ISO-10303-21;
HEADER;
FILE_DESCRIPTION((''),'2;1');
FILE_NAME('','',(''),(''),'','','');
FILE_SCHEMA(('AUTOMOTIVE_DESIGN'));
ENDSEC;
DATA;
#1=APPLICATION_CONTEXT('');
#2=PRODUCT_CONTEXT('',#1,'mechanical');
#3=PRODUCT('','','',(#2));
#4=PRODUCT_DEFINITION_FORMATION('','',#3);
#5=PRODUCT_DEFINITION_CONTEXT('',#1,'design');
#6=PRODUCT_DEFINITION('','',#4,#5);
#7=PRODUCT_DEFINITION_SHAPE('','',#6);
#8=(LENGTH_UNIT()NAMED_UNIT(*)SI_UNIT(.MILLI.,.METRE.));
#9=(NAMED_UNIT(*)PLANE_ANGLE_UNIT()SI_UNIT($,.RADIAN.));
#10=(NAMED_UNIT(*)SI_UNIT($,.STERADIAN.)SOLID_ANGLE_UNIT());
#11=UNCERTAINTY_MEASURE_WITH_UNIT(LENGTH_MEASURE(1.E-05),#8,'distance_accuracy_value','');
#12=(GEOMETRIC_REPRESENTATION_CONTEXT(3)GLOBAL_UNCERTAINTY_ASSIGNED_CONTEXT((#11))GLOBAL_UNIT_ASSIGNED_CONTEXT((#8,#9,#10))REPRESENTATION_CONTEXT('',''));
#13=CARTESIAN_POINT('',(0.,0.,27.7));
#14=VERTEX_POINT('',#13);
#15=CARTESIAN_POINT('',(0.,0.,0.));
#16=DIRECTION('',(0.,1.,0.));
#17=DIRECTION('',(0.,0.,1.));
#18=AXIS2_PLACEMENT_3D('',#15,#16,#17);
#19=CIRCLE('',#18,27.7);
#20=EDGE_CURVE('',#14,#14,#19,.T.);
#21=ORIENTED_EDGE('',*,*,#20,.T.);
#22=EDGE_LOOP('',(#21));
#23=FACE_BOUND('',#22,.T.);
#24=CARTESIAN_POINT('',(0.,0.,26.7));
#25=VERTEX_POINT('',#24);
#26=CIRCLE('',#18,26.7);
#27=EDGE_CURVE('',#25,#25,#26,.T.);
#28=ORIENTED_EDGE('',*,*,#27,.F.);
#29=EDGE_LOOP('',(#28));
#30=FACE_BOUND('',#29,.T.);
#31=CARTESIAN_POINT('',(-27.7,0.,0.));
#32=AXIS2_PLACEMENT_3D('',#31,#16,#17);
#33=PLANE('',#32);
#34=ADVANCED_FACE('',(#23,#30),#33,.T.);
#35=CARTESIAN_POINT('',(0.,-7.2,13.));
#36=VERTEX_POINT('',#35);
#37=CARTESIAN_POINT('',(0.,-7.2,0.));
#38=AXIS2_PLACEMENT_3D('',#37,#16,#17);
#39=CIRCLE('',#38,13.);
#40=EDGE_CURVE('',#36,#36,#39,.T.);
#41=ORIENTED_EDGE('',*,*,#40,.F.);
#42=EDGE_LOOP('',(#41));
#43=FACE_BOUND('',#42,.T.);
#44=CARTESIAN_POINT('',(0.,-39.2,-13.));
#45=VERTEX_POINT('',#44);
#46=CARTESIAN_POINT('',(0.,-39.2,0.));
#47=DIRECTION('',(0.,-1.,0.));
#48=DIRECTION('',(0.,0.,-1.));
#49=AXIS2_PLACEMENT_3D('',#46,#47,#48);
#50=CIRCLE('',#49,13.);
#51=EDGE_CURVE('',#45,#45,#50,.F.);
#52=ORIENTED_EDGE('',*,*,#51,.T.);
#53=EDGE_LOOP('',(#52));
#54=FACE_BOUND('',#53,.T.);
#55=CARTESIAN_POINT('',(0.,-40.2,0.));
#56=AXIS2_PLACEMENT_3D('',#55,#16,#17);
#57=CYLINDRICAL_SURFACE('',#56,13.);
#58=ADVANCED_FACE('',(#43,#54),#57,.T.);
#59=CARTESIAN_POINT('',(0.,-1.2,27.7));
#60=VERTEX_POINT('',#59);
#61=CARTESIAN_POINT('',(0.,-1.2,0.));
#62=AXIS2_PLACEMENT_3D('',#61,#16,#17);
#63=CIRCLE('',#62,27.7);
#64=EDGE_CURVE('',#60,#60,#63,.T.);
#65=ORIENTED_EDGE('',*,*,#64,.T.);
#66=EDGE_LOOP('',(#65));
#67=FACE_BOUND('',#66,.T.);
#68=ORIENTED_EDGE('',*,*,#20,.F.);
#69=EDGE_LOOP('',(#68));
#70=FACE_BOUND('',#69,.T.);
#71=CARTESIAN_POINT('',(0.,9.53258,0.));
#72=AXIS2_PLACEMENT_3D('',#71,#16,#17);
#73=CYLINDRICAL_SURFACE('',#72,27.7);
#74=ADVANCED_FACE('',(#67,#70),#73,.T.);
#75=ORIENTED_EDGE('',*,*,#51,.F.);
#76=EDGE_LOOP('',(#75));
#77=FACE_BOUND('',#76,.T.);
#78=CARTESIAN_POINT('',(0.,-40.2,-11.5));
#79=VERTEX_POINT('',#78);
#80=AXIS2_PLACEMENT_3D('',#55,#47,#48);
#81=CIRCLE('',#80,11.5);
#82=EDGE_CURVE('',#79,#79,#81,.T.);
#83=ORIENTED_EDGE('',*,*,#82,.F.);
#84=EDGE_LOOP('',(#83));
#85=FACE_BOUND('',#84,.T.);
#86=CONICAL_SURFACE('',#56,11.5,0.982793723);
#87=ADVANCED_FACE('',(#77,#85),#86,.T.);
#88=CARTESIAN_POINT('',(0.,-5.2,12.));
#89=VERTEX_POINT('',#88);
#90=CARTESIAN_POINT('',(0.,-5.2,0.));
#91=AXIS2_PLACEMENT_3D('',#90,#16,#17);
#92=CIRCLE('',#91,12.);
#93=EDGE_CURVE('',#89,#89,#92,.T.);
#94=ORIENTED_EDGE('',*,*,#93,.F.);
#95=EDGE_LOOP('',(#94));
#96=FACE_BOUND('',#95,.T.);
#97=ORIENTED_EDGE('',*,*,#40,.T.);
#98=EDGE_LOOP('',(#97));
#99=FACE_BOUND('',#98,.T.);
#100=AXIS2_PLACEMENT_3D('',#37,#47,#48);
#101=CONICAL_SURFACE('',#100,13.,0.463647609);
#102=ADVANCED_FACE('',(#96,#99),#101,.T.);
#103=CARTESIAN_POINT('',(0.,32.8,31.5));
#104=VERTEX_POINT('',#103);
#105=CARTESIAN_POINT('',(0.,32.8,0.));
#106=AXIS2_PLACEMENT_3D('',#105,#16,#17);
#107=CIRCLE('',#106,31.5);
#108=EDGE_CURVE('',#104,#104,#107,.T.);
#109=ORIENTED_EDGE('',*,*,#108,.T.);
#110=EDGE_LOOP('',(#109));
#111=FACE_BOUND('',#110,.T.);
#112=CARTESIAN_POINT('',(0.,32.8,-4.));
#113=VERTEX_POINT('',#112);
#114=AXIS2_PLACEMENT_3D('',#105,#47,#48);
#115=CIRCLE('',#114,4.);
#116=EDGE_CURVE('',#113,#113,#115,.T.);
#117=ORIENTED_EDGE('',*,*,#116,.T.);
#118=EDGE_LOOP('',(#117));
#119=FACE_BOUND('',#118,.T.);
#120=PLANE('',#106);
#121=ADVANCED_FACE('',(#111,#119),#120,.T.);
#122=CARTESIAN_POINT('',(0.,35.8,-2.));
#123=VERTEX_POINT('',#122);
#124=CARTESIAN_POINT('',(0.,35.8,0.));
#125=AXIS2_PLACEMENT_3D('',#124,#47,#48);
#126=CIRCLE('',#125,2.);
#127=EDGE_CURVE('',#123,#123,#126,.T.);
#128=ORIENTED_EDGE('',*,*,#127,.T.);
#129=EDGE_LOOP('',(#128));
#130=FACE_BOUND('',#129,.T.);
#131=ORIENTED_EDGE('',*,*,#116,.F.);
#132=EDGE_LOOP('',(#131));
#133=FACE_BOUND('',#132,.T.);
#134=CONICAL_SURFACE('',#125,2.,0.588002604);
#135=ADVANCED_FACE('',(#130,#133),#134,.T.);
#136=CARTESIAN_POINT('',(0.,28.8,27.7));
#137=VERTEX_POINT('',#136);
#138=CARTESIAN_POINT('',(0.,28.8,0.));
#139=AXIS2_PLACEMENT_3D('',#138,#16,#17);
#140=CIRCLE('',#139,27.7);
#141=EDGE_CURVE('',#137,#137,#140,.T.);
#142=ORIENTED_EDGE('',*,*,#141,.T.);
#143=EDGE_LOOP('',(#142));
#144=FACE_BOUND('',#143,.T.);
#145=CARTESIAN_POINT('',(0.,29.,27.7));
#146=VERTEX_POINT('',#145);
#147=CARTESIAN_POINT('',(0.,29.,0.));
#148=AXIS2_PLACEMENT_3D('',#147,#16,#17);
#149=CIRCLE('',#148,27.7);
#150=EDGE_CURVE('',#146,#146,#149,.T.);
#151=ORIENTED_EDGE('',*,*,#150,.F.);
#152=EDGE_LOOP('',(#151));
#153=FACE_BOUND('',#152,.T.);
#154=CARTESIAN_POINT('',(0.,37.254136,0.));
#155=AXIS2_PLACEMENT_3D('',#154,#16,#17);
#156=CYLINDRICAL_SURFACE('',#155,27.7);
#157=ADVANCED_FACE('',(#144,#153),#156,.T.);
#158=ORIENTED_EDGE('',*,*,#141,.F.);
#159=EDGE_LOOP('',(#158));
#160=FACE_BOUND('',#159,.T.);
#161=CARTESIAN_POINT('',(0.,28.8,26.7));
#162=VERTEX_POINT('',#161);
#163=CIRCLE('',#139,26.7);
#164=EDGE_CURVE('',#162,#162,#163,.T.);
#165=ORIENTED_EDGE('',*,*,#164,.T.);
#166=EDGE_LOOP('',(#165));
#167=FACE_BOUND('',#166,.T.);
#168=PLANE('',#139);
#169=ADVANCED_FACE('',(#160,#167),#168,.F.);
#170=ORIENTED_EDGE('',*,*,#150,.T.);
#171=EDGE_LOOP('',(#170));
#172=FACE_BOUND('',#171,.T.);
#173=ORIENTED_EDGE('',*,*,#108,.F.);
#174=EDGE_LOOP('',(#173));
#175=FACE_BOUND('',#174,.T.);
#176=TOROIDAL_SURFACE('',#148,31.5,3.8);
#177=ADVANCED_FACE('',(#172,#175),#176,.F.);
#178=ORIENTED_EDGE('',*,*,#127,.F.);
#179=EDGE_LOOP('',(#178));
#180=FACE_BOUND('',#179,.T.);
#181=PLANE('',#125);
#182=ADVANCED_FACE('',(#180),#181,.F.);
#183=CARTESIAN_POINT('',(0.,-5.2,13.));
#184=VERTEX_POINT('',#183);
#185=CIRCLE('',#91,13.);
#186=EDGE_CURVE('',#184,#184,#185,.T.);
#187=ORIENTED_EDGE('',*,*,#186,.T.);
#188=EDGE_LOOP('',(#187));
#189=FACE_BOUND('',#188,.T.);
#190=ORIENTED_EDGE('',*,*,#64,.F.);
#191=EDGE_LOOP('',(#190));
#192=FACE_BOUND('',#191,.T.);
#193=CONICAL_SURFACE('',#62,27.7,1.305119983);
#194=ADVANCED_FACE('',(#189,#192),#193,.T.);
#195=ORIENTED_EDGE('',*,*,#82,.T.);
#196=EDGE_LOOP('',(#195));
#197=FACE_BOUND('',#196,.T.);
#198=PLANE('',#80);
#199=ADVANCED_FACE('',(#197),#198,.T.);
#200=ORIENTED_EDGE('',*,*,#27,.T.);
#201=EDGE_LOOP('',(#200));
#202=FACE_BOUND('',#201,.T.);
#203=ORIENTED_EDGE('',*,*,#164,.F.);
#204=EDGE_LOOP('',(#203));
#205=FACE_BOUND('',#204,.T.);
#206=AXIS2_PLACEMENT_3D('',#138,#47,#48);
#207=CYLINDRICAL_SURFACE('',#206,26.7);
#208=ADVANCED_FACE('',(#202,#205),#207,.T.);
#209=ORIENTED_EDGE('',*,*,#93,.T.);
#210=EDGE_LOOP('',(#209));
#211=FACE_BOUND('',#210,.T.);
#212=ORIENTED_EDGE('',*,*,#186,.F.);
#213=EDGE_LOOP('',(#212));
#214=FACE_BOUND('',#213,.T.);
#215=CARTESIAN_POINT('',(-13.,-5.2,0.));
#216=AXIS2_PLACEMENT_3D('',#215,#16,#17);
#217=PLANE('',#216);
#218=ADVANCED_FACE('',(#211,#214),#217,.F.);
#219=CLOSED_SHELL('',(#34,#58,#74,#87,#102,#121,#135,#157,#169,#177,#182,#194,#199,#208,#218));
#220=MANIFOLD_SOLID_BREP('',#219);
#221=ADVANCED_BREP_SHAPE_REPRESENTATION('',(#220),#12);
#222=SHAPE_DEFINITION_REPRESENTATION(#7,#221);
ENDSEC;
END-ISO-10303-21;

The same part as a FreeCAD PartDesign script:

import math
import FreeCAD as App
import Part
import Sketcher

V = App.Vector
Q = App.Units.Quantity


def edges_at(feature, points):
    """Names of the edges that pass closest to the given points."""
    edges = feature.Shape.Edges
    near = lambda p: min(range(len(edges)), key=lambda i: edges[i].distToShape(Part.Vertex(*p))[0])
    return sorted({f"Edge{near(p) + 1}" for p in points})

doc = App.newDocument("Part")
body = doc.addObject("PartDesign::Body", "Body")

sketch1 = body.newObject("Sketcher::SketchObject", "Sketch")
sketch1.AttachmentSupport = (doc.getObject("XZ_Plane"), [""])
sketch1.MapMode = "FlatFace"
sketch1.addGeometry(Part.Circle(V(0, 0, 0), V(0, 0, 1), 27), False)
sketch1.addConstraint([
    Sketcher.Constraint("Coincident", 0, 3, -1, 1),
    Sketcher.Constraint("Diameter", 0, Q("53.4 mm")),
])
pad1 = body.newObject("PartDesign::Pad", "Pad")
pad1.Profile = sketch1
pad1.Length = 28.8
pad1.Reversed = True

sketch2 = body.newObject("Sketcher::SketchObject", "Sketch001")
sketch2.AttachmentSupport = (doc.getObject("XY_Plane"), [""])
sketch2.MapMode = "FlatFace"
sketch2.addGeometry([
    Part.LineSegment(V(-27.7, 28.8, 0), V(0, 28.8, 0)),
    Part.LineSegment(V(0, 28.8, 0), V(0, 29, 0)),
    Part.LineSegment(V(0, 29, 0), V(-27.7, 29, 0)),
    Part.LineSegment(V(-27.7, 29, 0), V(-27.7, 28.8, 0)),
], False)
sketch2.addConstraint([
    Sketcher.Constraint("Coincident", 0, 2, 1, 1),
    Sketcher.Constraint("Coincident", 1, 2, 2, 1),
    Sketcher.Constraint("Coincident", 2, 2, 3, 1),
    Sketcher.Constraint("Coincident", 3, 2, 0, 1),
    Sketcher.Constraint("Horizontal", 0),
    Sketcher.Constraint("Vertical", 1),
    Sketcher.Constraint("Horizontal", 2),
    Sketcher.Constraint("Vertical", 3),
    Sketcher.Constraint("PointOnObject", 0, 2, -2),
    Sketcher.Constraint("DistanceX", 0, 1, 0, 2, Q("27.7 mm")),
    Sketcher.Constraint("DistanceY", 1, 1, 1, 2, Q("0.2 mm")),
    Sketcher.Constraint("DistanceY", -1, 1, 1, 2, Q("29 mm")),
])
revolution = body.newObject("PartDesign::Revolution", "Revolution")
revolution.Profile = sketch2
revolution.ReferenceAxis = (sketch2, ["V_Axis"])
revolution.Angle = 360

sketch3 = body.newObject("Sketcher::SketchObject", "Sketch002")
sketch3.AttachmentSupport = (doc.getObject("XY_Plane"), [""])
sketch3.MapMode = "FlatFace"
sketch3.addGeometry([
    Part.ArcOfCircle(Part.Circle(V(-31.5, 29, 0), V(0, 0, 1), 3.8), math.radians(0), math.radians(90)),
    Part.LineSegment(V(-27.7, 29, 0), V(0, 29, 0)),
    Part.LineSegment(V(0, 29, 0), V(0, 32.8, 0)),
    Part.LineSegment(V(0, 32.8, 0), V(-31.5, 32.8, 0)),
], False)
sketch3.addConstraint([
    Sketcher.Constraint("Coincident", 0, 1, 1, 1),
    Sketcher.Constraint("Coincident", 1, 2, 2, 1),
    Sketcher.Constraint("Coincident", 2, 2, 3, 1),
    Sketcher.Constraint("Tangent", 3, 2, 0, 2),
    Sketcher.Constraint("Horizontal", 1),
    Sketcher.Constraint("Vertical", 2),
    Sketcher.Constraint("Horizontal", 3),
    Sketcher.Constraint("PointOnObject", 1, 2, -2),
    Sketcher.Constraint("Radius", 0, Q("3.8 mm")),
    Sketcher.Constraint("DistanceX", 1, 1, 1, 2, Q("27.7 mm")),
    Sketcher.Constraint("DistanceY", 2, 1, 2, 2, Q("3.8 mm")),
    Sketcher.Constraint("DistanceY", -1, 1, 0, 3, Q("29 mm")),
])
revolution2 = body.newObject("PartDesign::Revolution", "Revolution001")
revolution2.Profile = sketch3
revolution2.ReferenceAxis = (sketch3, ["V_Axis"])
revolution2.Angle = 360

sketch4 = body.newObject("Sketcher::SketchObject", "Sketch003")
sketch4.AttachmentSupport = (doc.getObject("XY_Plane"), [""])
sketch4.MapMode = "FlatFace"
sketch4.addGeometry([
    Part.LineSegment(V(0, 0, 0), V(-27.7, 0, 0)),
    Part.LineSegment(V(-27.7, 0, 0), V(-27.7, -1.2, 0)),
    Part.LineSegment(V(-27.7, -1.2, 0), V(0, -1.2, 0)),
    Part.LineSegment(V(0, -1.2, 0), V(0, 0, 0)),
], False)
sketch4.addConstraint([
    Sketcher.Constraint("Coincident", 0, 2, 1, 1),
    Sketcher.Constraint("Coincident", 1, 2, 2, 1),
    Sketcher.Constraint("Coincident", 2, 2, 3, 1),
    Sketcher.Constraint("Coincident", 3, 2, 0, 1),
    Sketcher.Constraint("Horizontal", 0),
    Sketcher.Constraint("Vertical", 1),
    Sketcher.Constraint("Horizontal", 2),
    Sketcher.Constraint("Vertical", 3),
    Sketcher.Constraint("Coincident", 3, 2, -1, 1),
    Sketcher.Constraint("DistanceX", 0, 2, 0, 1, Q("27.7 mm")),
    Sketcher.Constraint("DistanceY", 1, 2, 1, 1, Q("1.2 mm")),
])
revolution3 = body.newObject("PartDesign::Revolution", "Revolution002")
revolution3.Profile = sketch4
revolution3.ReferenceAxis = (sketch4, ["V_Axis"])
revolution3.Angle = 360

sketch5 = body.newObject("Sketcher::SketchObject", "Sketch004")
sketch5.AttachmentSupport = (doc.getObject("XZ_Plane"), [""])
sketch5.MapMode = "FlatFace"
sketch5.AttachmentOffset = App.Placement(V(0, 0, 1.2), App.Rotation())
sketch5.addGeometry(Part.Circle(V(0, 0, 0), V(0, 0, 1), 13), False)
sketch5.addConstraint([
    Sketcher.Constraint("Coincident", 0, 3, -1, 1),
    Sketcher.Constraint("Diameter", 0, Q("26 mm")),
])
pad2 = body.newObject("PartDesign::Pad", "Pad001")
pad2.Profile = sketch5
pad2.Length = 39
doc.recompute()

chamfer = body.newObject("PartDesign::Chamfer", "Chamfer")
chamfer.Base = (pad2, edges_at(pad2, [(0, -40.2, 13)]))
chamfer.ChamferType = "Two distances"
chamfer.Size = 1
chamfer.Size2 = 1.5

sketch6 = body.newObject("Sketcher::SketchObject", "Sketch005")
sketch6.AttachmentSupport = (doc.getObject("XY_Plane"), [""])
sketch6.MapMode = "FlatFace"
sketch6.addGeometry([
    Part.LineSegment(V(-13, -5.2, 0), V(-13, -1.2, 0)),
    Part.LineSegment(V(-13, -1.2, 0), V(-27.7, -1.2, 0)),
    Part.LineSegment(V(-27.7, -1.2, 0), V(-13, -5.2, 0)),
], False)
sketch6.addConstraint([
    Sketcher.Constraint("Coincident", 0, 2, 1, 1),
    Sketcher.Constraint("Coincident", 1, 2, 2, 1),
    Sketcher.Constraint("Coincident", 2, 2, 0, 1),
    Sketcher.Constraint("Vertical", 0),
    Sketcher.Constraint("Horizontal", 1),
    Sketcher.Constraint("DistanceY", 0, 1, 0, 2, Q("4 mm")),
    Sketcher.Constraint("DistanceX", 1, 2, 1, 1, Q("14.7 mm")),
    Sketcher.Constraint("DistanceX", 0, 2, -1, 1, Q("13 mm")),
    Sketcher.Constraint("DistanceY", 0, 2, -1, 1, Q("1.2 mm")),
])
revolution4 = body.newObject("PartDesign::Revolution", "Revolution003")
revolution4.Profile = sketch6
revolution4.ReferenceAxis = (sketch6, ["V_Axis"])
revolution4.Angle = 360

sketch7 = body.newObject("Sketcher::SketchObject", "Sketch006")
sketch7.AttachmentSupport = (doc.getObject("XY_Plane"), [""])
sketch7.MapMode = "FlatFace"
sketch7.addGeometry([
    Part.LineSegment(V(-12, -5.2, 0), V(-13, -5.2, 0)),
    Part.LineSegment(V(-13, -5.2, 0), V(-13, -7.2, 0)),
    Part.LineSegment(V(-13, -7.2, 0), V(-12, -5.2, 0)),
], False)
sketch7.addConstraint([
    Sketcher.Constraint("Coincident", 0, 2, 1, 1),
    Sketcher.Constraint("Coincident", 1, 2, 2, 1),
    Sketcher.Constraint("Coincident", 2, 2, 0, 1),
    Sketcher.Constraint("Horizontal", 0),
    Sketcher.Constraint("Vertical", 1),
    Sketcher.Constraint("DistanceX", 0, 2, 0, 1, Q("1 mm")),
    Sketcher.Constraint("DistanceY", 1, 2, 1, 1, Q("2 mm")),
    Sketcher.Constraint("DistanceX", 0, 2, -1, 1, Q("13 mm")),
    Sketcher.Constraint("DistanceY", 0, 2, -1, 1, Q("5.2 mm")),
])
groove = body.newObject("PartDesign::Groove", "Groove")
groove.Profile = sketch7
groove.ReferenceAxis = (sketch7, ["V_Axis"])
groove.Angle = 360

sketch8 = body.newObject("Sketcher::SketchObject", "Sketch007")
sketch8.AttachmentSupport = (doc.getObject("XY_Plane"), [""])
sketch8.MapMode = "FlatFace"
sketch8.addGeometry([
    Part.LineSegment(V(0, 32.8, 0), V(0, 35.8, 0)),
    Part.LineSegment(V(0, 35.8, 0), V(-2, 35.8, 0)),
    Part.LineSegment(V(-2, 35.8, 0), V(-4, 32.8, 0)),
    Part.LineSegment(V(-4, 32.8, 0), V(0, 32.8, 0)),
], False)
sketch8.addConstraint([
    Sketcher.Constraint("Coincident", 0, 2, 1, 1),
    Sketcher.Constraint("Coincident", 1, 2, 2, 1),
    Sketcher.Constraint("Coincident", 2, 2, 3, 1),
    Sketcher.Constraint("Coincident", 3, 2, 0, 1),
    Sketcher.Constraint("Vertical", 0),
    Sketcher.Constraint("Horizontal", 1),
    Sketcher.Constraint("Horizontal", 3),
    Sketcher.Constraint("PointOnObject", 0, 2, -2),
    Sketcher.Constraint("DistanceX", 1, 2, 1, 1, Q("2 mm")),
    Sketcher.Constraint("DistanceX", 3, 1, 3, 2, Q("4 mm")),
    Sketcher.Constraint("DistanceY", 0, 1, 0, 2, Q("3 mm")),
    Sketcher.Constraint("DistanceY", -1, 1, 0, 2, Q("35.8 mm")),
])
revolution5 = body.newObject("PartDesign::Revolution", "Revolution004")
revolution5.Profile = sketch8
revolution5.ReferenceAxis = (sketch8, ["V_Axis"])
revolution5.Angle = 360

doc.recompute()
